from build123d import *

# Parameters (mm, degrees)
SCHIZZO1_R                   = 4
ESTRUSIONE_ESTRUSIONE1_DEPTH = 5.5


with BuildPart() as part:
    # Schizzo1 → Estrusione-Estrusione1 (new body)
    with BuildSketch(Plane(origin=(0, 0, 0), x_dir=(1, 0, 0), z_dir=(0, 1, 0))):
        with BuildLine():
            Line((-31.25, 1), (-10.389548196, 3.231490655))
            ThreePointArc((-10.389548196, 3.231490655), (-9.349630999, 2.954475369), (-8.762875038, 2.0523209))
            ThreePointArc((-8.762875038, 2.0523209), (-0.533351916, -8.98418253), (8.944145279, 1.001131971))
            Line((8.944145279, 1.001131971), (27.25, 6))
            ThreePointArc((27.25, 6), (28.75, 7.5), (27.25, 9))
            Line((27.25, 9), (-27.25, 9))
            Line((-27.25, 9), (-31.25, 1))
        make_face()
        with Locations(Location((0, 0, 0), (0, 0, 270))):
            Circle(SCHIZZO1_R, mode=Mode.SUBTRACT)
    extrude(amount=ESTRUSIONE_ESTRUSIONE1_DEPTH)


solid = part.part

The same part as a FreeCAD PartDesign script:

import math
import FreeCAD as App
import Part
import Sketcher
Q = App.Units.Quantity

doc = App.newDocument("Part")
body = doc.addObject("PartDesign::Body", "Body")

# Sketch on XZ plane
sketch1 = body.newObject("Sketcher::SketchObject", "Sketch")
sketch1.AttachmentSupport = (doc.getObject("XZ_Plane"), [""])
sketch1.MapMode = "FlatFace"
sketch1.addGeometry(Part.LineSegment(App.Vector(-31.2, -1, 0), App.Vector(-10.4, -3.2, 0)), False)
sketch1.addGeometry(Part.ArcOfCircle(Part.Circle(App.Vector(-10.2, -1.7, 0), App.Vector(0, 0, 1), 1.5), math.radians(-96), math.radians(-12)), False)
sketch1.addGeometry(Part.ArcOfCircle(Part.Circle(App.Vector(0, 0, 0), App.Vector(0, 0, 1), 9), math.radians(-6), math.radians(193)), False)
sketch1.addGeometry(Part.LineSegment(App.Vector(8.9, -1, 0), App.Vector(27.2, -6, 0)), False)
sketch1.addGeometry(Part.ArcOfCircle(Part.Circle(App.Vector(27.2, -7.5, 0), App.Vector(0, 0, 1), 1.5), math.radians(-90), math.radians(90)), False)
sketch1.addGeometry(Part.LineSegment(App.Vector(27.2, -9, 0), App.Vector(-27.2, -9, 0)), False)
sketch1.addGeometry(Part.LineSegment(App.Vector(-27.2, -9, 0), App.Vector(-31.2, -1, 0)), False)
sketch1.addGeometry(Part.Circle(App.Vector(0, 0, 0), App.Vector(0, 0, 1), 4), False)
sketch1.addConstraint(Sketcher.Constraint("Tangent", 0, 2, 1, 1))
sketch1.addConstraint(Sketcher.Constraint("Coincident", 1, 2, 2, 2))
sketch1.addConstraint(Sketcher.Constraint("Coincident", 2, 1, 3, 1))
sketch1.addConstraint(Sketcher.Constraint("Coincident", 3, 2, 4, 2))
sketch1.addConstraint(Sketcher.Constraint("Tangent", 4, 1, 5, 1))
sketch1.addConstraint(Sketcher.Constraint("Coincident", 5, 2, 6, 1))
sketch1.addConstraint(Sketcher.Constraint("Coincident", 6, 2, 0, 1))
sketch1.addConstraint(Sketcher.Constraint("Horizontal", 5))
sketch1.addConstraint(Sketcher.Constraint("Coincident", 2, 3, -1, 1))
sketch1.addConstraint(Sketcher.Constraint("Coincident", 7, 3, -1, 1))
sketch1.addConstraint(Sketcher.Constraint("Equal", 1, 4))
sketch1.addConstraint(Sketcher.Constraint("Vertical", 4, 3, 3, 2))
sketch1.addConstraint(Sketcher.Constraint("Diameter", 7, Q("8 mm")))
sketch1.addConstraint(Sketcher.Constraint("Radius", 2, Q("9 mm")))
sketch1.addConstraint(Sketcher.Constraint("Radius", 1, Q("1.5 mm")))
sketch1.addConstraint(Sketcher.Constraint("DistanceX", 5, 2, 5, 1, Q("54.5 mm")))
sketch1.addConstraint(Sketcher.Constraint("DistanceY", 3, 2, -1, 1, Q("6 mm")))
sketch1.addConstraint(Sketcher.Constraint("DistanceY", 6, 2, -1, 1, Q("1 mm")))
sketch1.addConstraint(Sketcher.Constraint("DistanceX", 6, 2, 5, 2, Q("4 mm")))
sketch1.addConstraint(Sketcher.Constraint("DistanceX", 1, 3, -1, 1, Q("10.23 mm")))
sketch1.addConstraint(Sketcher.Constraint("DistanceY", 1, 3, -1, 1, Q("1.74 mm")))
sketch1.addConstraint(Sketcher.Constraint("DistanceX", -1, 1, 4, 3, Q("27.25 mm")))
sketch1.addConstraint(Sketcher.Constraint("DistanceY", 2, 1, -1, 1, Q("1.001132 mm")))
pad1 = body.newObject("PartDesign::Pad", "Pad")
pad1.Profile = sketch1
pad1.Length = 5.5
pad1.Reversed = True

doc.recompute()
